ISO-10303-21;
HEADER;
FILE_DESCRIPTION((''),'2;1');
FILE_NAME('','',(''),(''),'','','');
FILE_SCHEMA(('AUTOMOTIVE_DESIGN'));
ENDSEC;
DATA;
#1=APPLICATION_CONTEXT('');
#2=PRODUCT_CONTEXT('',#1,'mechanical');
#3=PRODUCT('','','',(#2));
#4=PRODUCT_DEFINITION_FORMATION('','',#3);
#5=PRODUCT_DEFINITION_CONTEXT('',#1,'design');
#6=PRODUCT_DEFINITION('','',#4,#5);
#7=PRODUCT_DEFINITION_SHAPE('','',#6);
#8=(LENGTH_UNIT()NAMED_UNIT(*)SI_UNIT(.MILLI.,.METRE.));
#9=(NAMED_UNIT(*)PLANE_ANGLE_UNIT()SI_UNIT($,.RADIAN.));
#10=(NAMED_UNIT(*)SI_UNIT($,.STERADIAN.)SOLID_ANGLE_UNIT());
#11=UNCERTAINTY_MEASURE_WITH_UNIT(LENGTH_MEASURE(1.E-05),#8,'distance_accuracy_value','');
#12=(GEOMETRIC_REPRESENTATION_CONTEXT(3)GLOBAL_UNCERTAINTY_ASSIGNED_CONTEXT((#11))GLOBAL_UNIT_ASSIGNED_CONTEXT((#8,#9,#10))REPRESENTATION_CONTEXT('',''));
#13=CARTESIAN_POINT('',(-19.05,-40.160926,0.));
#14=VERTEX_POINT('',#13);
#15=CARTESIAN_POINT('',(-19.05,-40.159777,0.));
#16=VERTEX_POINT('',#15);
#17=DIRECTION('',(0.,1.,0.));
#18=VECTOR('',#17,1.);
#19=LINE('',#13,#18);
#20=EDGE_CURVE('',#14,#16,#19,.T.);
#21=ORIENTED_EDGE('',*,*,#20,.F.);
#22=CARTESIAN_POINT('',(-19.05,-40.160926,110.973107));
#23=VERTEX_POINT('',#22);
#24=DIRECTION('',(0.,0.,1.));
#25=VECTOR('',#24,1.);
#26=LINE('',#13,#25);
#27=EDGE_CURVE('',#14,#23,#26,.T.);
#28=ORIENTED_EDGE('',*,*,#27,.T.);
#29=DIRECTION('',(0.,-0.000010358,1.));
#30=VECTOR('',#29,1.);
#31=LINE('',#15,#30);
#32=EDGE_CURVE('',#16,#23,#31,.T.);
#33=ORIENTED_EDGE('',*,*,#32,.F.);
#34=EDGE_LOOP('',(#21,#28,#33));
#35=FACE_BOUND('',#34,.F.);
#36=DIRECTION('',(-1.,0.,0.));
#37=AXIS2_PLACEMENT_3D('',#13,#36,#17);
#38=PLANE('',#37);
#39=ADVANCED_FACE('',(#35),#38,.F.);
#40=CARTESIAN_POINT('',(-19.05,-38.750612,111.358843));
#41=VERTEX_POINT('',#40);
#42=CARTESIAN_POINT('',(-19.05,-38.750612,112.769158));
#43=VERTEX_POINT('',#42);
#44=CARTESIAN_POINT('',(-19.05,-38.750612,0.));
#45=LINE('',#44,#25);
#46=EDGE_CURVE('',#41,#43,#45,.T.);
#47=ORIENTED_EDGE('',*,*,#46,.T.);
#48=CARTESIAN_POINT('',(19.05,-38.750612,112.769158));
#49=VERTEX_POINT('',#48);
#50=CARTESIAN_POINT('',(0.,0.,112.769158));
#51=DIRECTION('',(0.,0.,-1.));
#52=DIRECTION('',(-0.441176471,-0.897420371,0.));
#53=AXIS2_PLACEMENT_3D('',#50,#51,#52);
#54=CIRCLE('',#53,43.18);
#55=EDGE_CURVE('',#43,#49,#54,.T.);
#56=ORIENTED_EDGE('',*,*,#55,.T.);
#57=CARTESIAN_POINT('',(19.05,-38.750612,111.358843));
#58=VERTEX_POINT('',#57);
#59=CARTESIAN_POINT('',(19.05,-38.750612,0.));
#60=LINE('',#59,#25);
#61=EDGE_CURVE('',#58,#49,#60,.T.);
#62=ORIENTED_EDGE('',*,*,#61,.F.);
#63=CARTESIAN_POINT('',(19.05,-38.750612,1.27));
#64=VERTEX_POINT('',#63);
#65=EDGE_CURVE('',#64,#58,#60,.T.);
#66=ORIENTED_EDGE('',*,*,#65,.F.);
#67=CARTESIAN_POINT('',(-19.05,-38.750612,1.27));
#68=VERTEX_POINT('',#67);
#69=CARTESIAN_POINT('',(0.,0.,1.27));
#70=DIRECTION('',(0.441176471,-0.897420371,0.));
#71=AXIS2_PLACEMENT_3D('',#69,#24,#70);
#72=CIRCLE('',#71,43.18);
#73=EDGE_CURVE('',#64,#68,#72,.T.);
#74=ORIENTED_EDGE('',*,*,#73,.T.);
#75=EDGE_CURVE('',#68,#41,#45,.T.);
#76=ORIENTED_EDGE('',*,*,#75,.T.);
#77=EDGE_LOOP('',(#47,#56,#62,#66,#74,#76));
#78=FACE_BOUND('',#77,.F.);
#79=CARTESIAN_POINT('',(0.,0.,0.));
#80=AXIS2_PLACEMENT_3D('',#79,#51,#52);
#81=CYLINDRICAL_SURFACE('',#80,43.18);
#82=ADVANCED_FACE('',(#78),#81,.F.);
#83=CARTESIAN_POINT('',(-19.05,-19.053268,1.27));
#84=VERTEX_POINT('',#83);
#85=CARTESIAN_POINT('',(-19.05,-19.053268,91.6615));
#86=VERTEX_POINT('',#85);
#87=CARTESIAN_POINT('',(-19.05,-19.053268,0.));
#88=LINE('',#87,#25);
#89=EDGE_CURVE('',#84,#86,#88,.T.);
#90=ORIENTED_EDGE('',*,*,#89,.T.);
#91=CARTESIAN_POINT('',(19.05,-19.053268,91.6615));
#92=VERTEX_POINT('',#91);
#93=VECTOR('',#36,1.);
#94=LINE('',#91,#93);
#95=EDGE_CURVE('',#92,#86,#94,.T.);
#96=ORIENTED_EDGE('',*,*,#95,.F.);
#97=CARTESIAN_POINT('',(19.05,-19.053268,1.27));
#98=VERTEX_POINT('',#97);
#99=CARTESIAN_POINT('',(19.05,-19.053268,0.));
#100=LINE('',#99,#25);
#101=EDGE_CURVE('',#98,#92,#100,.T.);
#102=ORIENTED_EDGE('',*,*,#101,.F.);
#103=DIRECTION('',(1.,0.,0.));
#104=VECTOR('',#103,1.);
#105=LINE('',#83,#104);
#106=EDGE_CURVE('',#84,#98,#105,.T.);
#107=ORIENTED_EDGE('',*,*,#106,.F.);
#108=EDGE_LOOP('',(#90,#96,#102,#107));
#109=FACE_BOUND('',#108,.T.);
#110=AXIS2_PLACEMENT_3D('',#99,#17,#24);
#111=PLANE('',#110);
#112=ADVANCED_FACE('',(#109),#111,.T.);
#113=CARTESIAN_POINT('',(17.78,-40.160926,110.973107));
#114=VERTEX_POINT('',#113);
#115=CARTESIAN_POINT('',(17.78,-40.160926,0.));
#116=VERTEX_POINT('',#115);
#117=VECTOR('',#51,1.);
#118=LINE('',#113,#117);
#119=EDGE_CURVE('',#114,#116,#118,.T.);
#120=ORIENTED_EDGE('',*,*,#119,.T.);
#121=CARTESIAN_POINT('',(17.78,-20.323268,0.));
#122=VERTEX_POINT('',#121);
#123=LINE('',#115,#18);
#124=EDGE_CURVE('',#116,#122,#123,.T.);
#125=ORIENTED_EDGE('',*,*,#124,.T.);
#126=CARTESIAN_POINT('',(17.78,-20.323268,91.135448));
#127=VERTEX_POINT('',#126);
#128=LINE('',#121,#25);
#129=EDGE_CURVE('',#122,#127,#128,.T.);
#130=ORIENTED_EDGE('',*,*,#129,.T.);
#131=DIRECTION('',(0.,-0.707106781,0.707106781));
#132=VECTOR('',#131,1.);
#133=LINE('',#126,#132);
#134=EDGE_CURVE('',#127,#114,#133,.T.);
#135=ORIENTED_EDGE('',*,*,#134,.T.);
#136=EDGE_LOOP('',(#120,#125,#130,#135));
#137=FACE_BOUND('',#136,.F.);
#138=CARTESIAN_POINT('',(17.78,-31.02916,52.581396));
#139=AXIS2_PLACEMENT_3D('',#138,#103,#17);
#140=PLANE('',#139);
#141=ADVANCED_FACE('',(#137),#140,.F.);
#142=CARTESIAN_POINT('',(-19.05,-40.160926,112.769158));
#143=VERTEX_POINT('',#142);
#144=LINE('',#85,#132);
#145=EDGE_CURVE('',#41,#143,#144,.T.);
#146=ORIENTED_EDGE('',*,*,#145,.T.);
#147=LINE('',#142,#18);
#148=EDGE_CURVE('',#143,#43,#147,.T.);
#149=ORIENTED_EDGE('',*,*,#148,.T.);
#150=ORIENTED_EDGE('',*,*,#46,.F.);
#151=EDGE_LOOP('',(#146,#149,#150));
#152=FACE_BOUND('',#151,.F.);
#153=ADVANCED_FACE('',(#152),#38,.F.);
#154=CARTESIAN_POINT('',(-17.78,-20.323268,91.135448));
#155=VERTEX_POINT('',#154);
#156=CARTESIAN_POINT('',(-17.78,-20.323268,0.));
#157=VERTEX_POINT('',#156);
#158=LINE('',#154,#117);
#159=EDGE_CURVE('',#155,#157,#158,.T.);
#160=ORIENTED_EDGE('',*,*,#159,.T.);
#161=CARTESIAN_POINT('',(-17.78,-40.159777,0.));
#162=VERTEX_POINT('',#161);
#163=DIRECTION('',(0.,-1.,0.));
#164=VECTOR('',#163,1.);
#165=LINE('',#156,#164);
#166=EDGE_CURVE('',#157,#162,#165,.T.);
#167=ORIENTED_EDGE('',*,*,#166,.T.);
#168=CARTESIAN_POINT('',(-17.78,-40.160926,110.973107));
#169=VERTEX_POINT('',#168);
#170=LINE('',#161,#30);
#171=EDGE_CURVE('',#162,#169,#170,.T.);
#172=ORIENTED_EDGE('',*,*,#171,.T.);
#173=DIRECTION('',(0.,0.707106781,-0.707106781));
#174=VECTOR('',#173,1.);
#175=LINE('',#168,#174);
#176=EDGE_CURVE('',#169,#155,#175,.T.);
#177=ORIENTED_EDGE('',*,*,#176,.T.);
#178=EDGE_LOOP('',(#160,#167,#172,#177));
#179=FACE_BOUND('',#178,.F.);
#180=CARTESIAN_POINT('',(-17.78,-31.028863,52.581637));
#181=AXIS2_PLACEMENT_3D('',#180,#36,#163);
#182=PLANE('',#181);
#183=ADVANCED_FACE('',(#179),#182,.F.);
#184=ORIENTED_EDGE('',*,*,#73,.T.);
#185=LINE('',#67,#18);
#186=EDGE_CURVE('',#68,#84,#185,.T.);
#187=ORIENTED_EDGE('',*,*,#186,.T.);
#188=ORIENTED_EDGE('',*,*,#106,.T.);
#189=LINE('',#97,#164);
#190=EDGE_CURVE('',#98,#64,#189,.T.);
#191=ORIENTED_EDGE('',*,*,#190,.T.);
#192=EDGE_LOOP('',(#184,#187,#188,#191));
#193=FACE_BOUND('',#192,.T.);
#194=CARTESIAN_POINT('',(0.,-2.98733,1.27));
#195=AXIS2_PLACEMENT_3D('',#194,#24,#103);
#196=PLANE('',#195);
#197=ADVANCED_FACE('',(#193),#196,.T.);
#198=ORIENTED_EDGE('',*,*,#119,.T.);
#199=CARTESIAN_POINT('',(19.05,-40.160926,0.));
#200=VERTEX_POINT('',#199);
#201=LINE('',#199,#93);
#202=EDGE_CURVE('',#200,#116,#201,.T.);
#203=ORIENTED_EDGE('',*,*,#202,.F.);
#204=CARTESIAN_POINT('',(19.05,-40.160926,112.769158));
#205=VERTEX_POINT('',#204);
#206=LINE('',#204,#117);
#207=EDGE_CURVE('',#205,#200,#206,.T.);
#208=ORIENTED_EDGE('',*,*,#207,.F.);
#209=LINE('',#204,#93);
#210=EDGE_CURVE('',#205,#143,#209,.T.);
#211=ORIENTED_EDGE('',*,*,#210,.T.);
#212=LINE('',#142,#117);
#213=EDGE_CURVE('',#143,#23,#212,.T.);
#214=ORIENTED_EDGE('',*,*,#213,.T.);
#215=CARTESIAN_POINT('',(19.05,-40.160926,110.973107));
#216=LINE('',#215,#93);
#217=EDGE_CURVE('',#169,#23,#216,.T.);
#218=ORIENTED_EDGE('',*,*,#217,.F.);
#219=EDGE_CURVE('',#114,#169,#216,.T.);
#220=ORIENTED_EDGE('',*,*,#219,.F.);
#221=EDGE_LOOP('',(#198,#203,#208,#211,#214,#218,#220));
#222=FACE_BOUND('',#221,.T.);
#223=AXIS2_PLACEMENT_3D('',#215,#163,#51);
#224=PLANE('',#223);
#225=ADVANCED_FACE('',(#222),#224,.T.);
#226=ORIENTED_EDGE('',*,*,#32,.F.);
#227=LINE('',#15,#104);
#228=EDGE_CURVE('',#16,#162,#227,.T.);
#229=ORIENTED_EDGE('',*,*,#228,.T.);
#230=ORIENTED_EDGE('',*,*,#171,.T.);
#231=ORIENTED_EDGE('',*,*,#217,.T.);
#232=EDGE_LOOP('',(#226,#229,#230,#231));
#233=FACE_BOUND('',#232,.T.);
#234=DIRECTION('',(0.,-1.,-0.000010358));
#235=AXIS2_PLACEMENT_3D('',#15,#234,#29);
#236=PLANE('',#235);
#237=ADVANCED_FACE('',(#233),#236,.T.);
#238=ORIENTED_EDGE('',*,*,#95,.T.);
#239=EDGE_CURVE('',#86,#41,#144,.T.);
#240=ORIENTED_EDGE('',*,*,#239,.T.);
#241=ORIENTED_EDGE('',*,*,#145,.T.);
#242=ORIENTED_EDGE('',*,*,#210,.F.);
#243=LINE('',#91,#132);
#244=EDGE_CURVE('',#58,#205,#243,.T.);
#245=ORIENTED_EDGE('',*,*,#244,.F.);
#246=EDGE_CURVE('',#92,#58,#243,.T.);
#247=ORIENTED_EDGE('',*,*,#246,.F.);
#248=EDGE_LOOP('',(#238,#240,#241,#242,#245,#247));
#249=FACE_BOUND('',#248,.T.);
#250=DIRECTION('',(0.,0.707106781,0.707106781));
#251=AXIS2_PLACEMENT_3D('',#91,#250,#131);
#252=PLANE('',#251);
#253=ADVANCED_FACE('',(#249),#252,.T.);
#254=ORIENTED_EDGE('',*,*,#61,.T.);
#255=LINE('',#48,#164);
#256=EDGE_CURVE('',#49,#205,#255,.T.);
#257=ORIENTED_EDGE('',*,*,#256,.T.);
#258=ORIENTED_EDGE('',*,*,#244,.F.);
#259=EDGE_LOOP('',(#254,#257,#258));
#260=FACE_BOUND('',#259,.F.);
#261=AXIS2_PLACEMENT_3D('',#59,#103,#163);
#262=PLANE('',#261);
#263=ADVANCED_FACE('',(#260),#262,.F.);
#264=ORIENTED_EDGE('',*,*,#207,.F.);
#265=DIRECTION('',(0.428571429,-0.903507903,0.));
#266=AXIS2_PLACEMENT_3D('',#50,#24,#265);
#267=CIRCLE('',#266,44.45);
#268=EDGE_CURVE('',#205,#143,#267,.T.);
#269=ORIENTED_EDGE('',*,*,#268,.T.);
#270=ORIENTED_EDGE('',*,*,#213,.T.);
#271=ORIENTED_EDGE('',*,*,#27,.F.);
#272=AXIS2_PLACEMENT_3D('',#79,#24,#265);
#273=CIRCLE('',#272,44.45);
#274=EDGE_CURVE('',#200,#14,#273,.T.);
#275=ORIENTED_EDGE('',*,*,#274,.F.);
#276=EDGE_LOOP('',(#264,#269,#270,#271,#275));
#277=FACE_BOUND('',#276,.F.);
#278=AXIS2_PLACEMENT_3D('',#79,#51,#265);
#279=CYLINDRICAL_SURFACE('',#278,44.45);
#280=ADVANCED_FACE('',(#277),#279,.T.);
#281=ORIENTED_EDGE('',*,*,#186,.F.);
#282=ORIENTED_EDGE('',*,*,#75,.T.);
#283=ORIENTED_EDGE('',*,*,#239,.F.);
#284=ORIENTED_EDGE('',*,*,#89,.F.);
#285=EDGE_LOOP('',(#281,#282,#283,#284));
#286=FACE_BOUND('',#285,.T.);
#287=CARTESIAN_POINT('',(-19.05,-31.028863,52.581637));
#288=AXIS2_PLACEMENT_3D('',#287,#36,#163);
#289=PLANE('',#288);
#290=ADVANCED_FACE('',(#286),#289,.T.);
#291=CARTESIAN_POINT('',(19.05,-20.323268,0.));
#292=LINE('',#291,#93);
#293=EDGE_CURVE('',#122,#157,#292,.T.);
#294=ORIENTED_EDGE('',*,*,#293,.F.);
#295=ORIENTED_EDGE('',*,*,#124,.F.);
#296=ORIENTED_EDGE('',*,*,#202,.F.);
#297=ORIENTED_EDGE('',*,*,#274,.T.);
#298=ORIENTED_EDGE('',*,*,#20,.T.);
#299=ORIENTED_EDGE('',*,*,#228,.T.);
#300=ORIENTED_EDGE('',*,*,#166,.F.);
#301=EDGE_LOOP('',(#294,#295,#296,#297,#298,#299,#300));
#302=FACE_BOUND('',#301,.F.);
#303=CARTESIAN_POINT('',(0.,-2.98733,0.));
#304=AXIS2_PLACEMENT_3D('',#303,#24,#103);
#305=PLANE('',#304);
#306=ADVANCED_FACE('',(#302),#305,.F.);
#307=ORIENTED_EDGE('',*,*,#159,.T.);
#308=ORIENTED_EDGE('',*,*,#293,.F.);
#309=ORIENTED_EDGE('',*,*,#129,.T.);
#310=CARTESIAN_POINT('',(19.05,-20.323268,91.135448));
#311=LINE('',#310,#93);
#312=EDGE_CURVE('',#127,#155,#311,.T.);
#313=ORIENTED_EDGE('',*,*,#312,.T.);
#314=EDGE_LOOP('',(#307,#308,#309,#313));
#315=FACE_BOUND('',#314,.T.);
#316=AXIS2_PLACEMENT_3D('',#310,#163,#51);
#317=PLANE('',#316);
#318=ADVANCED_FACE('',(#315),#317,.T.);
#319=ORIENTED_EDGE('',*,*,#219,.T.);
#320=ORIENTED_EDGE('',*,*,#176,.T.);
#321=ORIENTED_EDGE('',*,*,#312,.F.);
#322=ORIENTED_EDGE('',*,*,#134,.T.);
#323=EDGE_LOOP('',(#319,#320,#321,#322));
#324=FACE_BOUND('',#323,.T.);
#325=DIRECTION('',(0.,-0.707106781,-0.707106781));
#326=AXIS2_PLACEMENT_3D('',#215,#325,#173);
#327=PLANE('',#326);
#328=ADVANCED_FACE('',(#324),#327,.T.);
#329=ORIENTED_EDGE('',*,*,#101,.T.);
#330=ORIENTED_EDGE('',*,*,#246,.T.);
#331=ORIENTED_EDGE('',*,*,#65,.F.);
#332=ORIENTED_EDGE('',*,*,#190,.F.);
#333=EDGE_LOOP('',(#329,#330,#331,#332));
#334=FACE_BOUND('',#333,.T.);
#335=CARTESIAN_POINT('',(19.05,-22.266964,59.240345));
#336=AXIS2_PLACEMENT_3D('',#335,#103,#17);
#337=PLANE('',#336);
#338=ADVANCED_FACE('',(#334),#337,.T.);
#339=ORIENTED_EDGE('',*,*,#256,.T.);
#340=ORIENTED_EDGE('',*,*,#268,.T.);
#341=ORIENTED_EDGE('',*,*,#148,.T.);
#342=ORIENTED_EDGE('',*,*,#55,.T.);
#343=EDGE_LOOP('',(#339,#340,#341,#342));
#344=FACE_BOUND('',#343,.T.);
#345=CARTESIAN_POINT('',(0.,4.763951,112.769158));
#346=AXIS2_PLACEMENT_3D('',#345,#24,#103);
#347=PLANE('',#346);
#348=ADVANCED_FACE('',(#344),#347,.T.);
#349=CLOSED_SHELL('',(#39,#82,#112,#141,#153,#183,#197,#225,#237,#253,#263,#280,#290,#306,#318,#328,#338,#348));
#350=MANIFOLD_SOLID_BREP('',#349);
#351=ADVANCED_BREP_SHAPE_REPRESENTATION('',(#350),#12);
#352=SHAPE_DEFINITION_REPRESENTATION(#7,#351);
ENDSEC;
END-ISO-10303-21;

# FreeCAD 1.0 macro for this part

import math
import FreeCAD as App
import Part
import Sketcher

V = App.Vector
Q = App.Units.Quantity

doc = App.newDocument("Part")
params = doc.addObject("Spreadsheet::Sheet", "Params")
for row, (alias, value) in enumerate([
    ("pad1_length", "0.05 in"),
    ("sketch2_width", "0.05 in"),
    ("pad2_length", "1.5 in"),
    ("pad3_length", "0.05 in"),
    ("sketch4_radius", "1.7 in"),
    ("sketch4_radius2", "1.75 in"),
    ("pad4_length", "112.769158 mm"),
    ("sketch5_radius", "1.7 in"),
    ("sketch5_width", "1.5 in"),
    ("pad5_length", "0.05 in"),
], start=1):
    params.set(f"A{row}", alias)
    params.set(f"B{row}", "=" + value)
    params.setAlias(f"B{row}", alias)

body = doc.addObject("PartDesign::Body", "Body")

# Sketch on YZ plane
sketch1 = doc.addObject("Sketcher::SketchObject", "Sketch")
body.addObject(sketch1)
sketch1.AttachmentSupport = (doc.YZ_Plane, [""])
sketch1.MapMode = "FlatFace"
sketch1.AttachmentOffset = App.Placement(V(0, 0, 0.75 * 25.4), App.Rotation())
sketch1.addGeometry(Part.LineSegment(V(-40, 0, 0), V(-20, 0, 0)), False)
sketch1.addGeometry(Part.LineSegment(V(-20, 0, 0), V(-20, 91, 0)), False)
sketch1.addGeometry(Part.LineSegment(V(-20, 91, 0), V(-40, 111, 0)), False)
sketch1.addGeometry(Part.LineSegment(V(-40, 111, 0), V(-40, 0, 0)), False)
sketch1.addConstraint(Sketcher.Constraint("Coincident", 0, 2, 1, 1))
sketch1.addConstraint(Sketcher.Constraint("Coincident", 1, 2, 2, 1))
sketch1.addConstraint(Sketcher.Constraint("Coincident", 2, 2, 3, 1))
sketch1.addConstraint(Sketcher.Constraint("Coincident", 3, 2, 0, 1))
sketch1.addConstraint(Sketcher.Constraint("Horizontal", 0))
sketch1.addConstraint(Sketcher.Constraint("Vertical", 1))
sketch1.addConstraint(Sketcher.Constraint("Vertical", 3))
sketch1.addConstraint(Sketcher.Constraint("PointOnObject", 0, 2, -1))
sketch1.addConstraint(Sketcher.Constraint("Angle", 2, Q("135 deg")))
sketch1.addConstraint(Sketcher.Constraint("DistanceX", 0, 1, 0, 2, Q("19.837658 mm")))
sketch1.addConstraint(Sketcher.Constraint("DistanceY", 1, 1, 1, 2, Q("91.135448 mm")))
sketch1.addConstraint(Sketcher.Constraint("DistanceX", 0, 2, -1, 1, Q("20.323268 mm")))
pad1 = doc.addObject("PartDesign::Pad", "Pad")
body.addObject(pad1)
pad1.Profile = sketch1
pad1.setExpression("Length", "Params.pad1_length")
pad1.Reversed = True

# Sketch on YZ plane
sketch2 = doc.addObject("Sketcher::SketchObject", "Sketch001")
body.addObject(sketch2)
sketch2.AttachmentSupport = (doc.YZ_Plane, [""])
sketch2.MapMode = "FlatFace"
sketch2.AttachmentOffset = App.Placement(V(0, 0, 0.75 * 25.4), App.Rotation())
sketch2.addGeometry(Part.LineSegment(V(-20.3, 0, 0), V(-19.1, 0, 0)), False)
sketch2.addGeometry(Part.LineSegment(V(-19.1, 0, 0), V(-19.1, 91.7, 0)), False)
sketch2.addGeometry(Part.LineSegment(V(-19.1, 91.7, 0), V(-40.2, 112.8, 0)), False)
sketch2.addGeometry(Part.LineSegment(V(-40.2, 112.8, 0), V(-40.2, 111, 0)), False)
sketch2.addGeometry(Part.LineSegment(V(-40.2, 111, 0), V(-20.3, 91.1, 0)), False)
sketch2.addGeometry(Part.LineSegment(V(-20.3, 91.1, 0), V(-20.3, 0, 0)), False)
sketch2.addConstraint(Sketcher.Constraint("Coincident", 0, 2, 1, 1))
sketch2.addConstraint(Sketcher.Constraint("Coincident", 1, 2, 2, 1))
sketch2.addConstraint(Sketcher.Constraint("Coincident", 2, 2, 3, 1))
sketch2.addConstraint(Sketcher.Constraint("Coincident", 3, 2, 4, 1))
sketch2.addConstraint(Sketcher.Constraint("Coincident", 4, 2, 5, 1))
sketch2.addConstraint(Sketcher.Constraint("Coincident", 5, 2, 0, 1))
sketch2.addConstraint(Sketcher.Constraint("Horizontal", 0))
sketch2.addConstraint(Sketcher.Constraint("Vertical", 1))
sketch2.addConstraint(Sketcher.Constraint("Vertical", 3))
sketch2.addConstraint(Sketcher.Constraint("Vertical", 5))
sketch2.addConstraint(Sketcher.Constraint("PointOnObject", 0, 2, -1))
sketch2.addConstraint(Sketcher.Constraint("Parallel", 2, 4))
sketch2.addConstraint(Sketcher.Constraint("Angle", 2, Q("135 deg")))
sketch2.addConstraint(Sketcher.Constraint("DistanceX", 0, 1, 0, 2, Q("0.05 in")))
sketch2.addConstraint(Sketcher.Constraint("DistanceY", 1, 1, 1, 2, Q("91.6615 mm")))
sketch2.addConstraint(Sketcher.Constraint("DistanceY", 3, 2, 3, 1, Q("1.796051 mm")))
sketch2.addConstraint(Sketcher.Constraint("DistanceY", -1, 1, 2, 2, Q("112.769158 mm")))
sketch2.addConstraint(Sketcher.Constraint("DistanceX", 0, 2, -1, 1, Q("19.053268 mm")))
sketch2.setExpression("Constraints[13]", "Params.sketch2_width")
pad2 = doc.addObject("PartDesign::Pad", "Pad001")
body.addObject(pad2)
pad2.Profile = sketch2
pad2.setExpression("Length", "Params.pad2_length")
pad2.Reversed = True

# Sketch on YZ plane
sketch3 = doc.addObject("Sketcher::SketchObject", "Sketch002")
body.addObject(sketch3)
sketch3.AttachmentSupport = (doc.YZ_Plane, [""])
sketch3.MapMode = "FlatFace"
sketch3.AttachmentOffset = App.Placement(V(0, 0, -0.75 * 25.4), App.Rotation())
sketch3.addGeometry(Part.LineSegment(V(-20, 0, 0), V(-40, 0, 0)), False)
sketch3.addGeometry(Part.LineSegment(V(-40, 0, 0), V(-40, 111, 0)), False)
sketch3.addGeometry(Part.LineSegment(V(-40, 111, 0), V(-20, 91, 0)), False)
sketch3.addGeometry(Part.LineSegment(V(-20, 91, 0), V(-20, 0, 0)), False)
sketch3.addConstraint(Sketcher.Constraint("Coincident", 0, 2, 1, 1))
sketch3.addConstraint(Sketcher.Constraint("Coincident", 1, 2, 2, 1))
sketch3.addConstraint(Sketcher.Constraint("Coincident", 2, 2, 3, 1))
sketch3.addConstraint(Sketcher.Constraint("Coincident", 3, 2, 0, 1))
sketch3.addConstraint(Sketcher.Constraint("Horizontal", 0))
sketch3.addConstraint(Sketcher.Constraint("Vertical", 3))
sketch3.addConstraint(Sketcher.Constraint("PointOnObject", 0, 2, -1))
sketch3.addConstraint(Sketcher.Constraint("Angle", 2, Q("-45 deg")))
sketch3.addConstraint(Sketcher.Constraint("DistanceX", 0, 2, 0, 1, Q("19.836509 mm")))
sketch3.addConstraint(Sketcher.Constraint("DistanceY", 3, 2, 3, 1, Q("91.135448 mm")))
sketch3.addConstraint(Sketcher.Constraint("DistanceX", 1, 2, 0, 2, Q("0.001149 mm")))
sketch3.addConstraint(Sketcher.Constraint("DistanceX", 0, 2, -1, 1, Q("40.159777 mm")))
pad3 = doc.addObject("PartDesign::Pad", "Pad002")
body.addObject(pad3)
pad3.Profile = sketch3
pad3.setExpression("Length", "Params.pad3_length")

# Sketch on XY plane
sketch4 = doc.addObject("Sketcher::SketchObject", "Sketch003")
body.addObject(sketch4)
sketch4.AttachmentSupport = (doc.XY_Plane, [""])
sketch4.MapMode = "FlatFace"
sketch4.addGeometry(Part.LineSegment(V(19.1, -38.8, 0), V(19.1, -40.2, 0)), False)
sketch4.addGeometry(Part.ArcOfCircle(Part.Circle(V(0, 0, 0), V(0, 0, 1), 44.5), math.radians(-65), math.radians(245)), False)
sketch4.addGeometry(Part.LineSegment(V(-19.1, -40.2, 0), V(-19.1, -38.8, 0)), False)
sketch4.addGeometry(Part.ArcOfCircle(Part.Circle(V(0, 0, 0), V(0, 0, 1), 43.2), math.radians(-64), math.radians(244)), False)
sketch4.addConstraint(Sketcher.Constraint("Coincident", 0, 2, 1, 1))
sketch4.addConstraint(Sketcher.Constraint("Coincident", 1, 2, 2, 1))
sketch4.addConstraint(Sketcher.Constraint("Coincident", 2, 2, 3, 2))
sketch4.addConstraint(Sketcher.Constraint("Coincident", 3, 1, 0, 1))
sketch4.addConstraint(Sketcher.Constraint("Vertical", 0))
sketch4.addConstraint(Sketcher.Constraint("Vertical", 2))
sketch4.addConstraint(Sketcher.Constraint("Coincident", 1, 3, -1, 1))
sketch4.addConstraint(Sketcher.Constraint("Coincident", 3, 3, -1, 1))
sketch4.addConstraint(Sketcher.Constraint("Horizontal", 0, 2, 1, 2))
sketch4.addConstraint(Sketcher.Constraint("Radius", 3, Q("1.7 in")))
sketch4.addConstraint(Sketcher.Constraint("Radius", 1, Q("1.75 in")))
sketch4.addConstraint(Sketcher.Constraint("DistanceX", 1, 2, 0, 2, Q("1.5 in")))
sketch4.setExpression("Constraints[9]", "Params.sketch4_radius")
sketch4.setExpression("Constraints[10]", "Params.sketch4_radius2")
pad4 = doc.addObject("PartDesign::Pad", "Pad003")
body.addObject(pad4)
pad4.Profile = sketch4
pad4.setExpression("Length", "Params.pad4_length")

# Sketch on XY plane
sketch5 = doc.addObject("Sketcher::SketchObject", "Sketch004")
body.addObject(sketch5)
sketch5.AttachmentSupport = (doc.XY_Plane, [""])
sketch5.MapMode = "FlatFace"
sketch5.addGeometry(Part.LineSegment(V(19, -19, 0), V(19, -39, 0)), False)
sketch5.addGeometry(Part.ArcOfCircle(Part.Circle(V(0, 0, 0), V(0, 0, 1), 43), math.radians(-64), math.radians(244)), False)
sketch5.addGeometry(Part.LineSegment(V(-19, -39, 0), V(-19, -19, 0)), False)
sketch5.addGeometry(Part.LineSegment(V(-19, -19, 0), V(19, -19, 0)), False)
sketch5.addConstraint(Sketcher.Constraint("Coincident", 0, 2, 1, 1))
sketch5.addConstraint(Sketcher.Constraint("Coincident", 1, 2, 2, 1))
sketch5.addConstraint(Sketcher.Constraint("Coincident", 2, 2, 3, 1))
sketch5.addConstraint(Sketcher.Constraint("Coincident", 3, 2, 0, 1))
sketch5.addConstraint(Sketcher.Constraint("Vertical", 0))
sketch5.addConstraint(Sketcher.Constraint("Vertical", 2))
sketch5.addConstraint(Sketcher.Constraint("Horizontal", 3))
sketch5.addConstraint(Sketcher.Constraint("Coincident", 1, 3, -1, 1))
sketch5.addConstraint(Sketcher.Constraint("Horizontal", 0, 2, 1, 2))
sketch5.addConstraint(Sketcher.Constraint("Radius", 1, Q("1.7 in")))
sketch5.addConstraint(Sketcher.Constraint("DistanceX", 3, 1, 3, 2, Q("1.5 in")))
sketch5.addConstraint(Sketcher.Constraint("DistanceY", 0, 2, 0, 1, Q("19.697344 mm")))
sketch5.setExpression("Constraints[9]", "Params.sketch5_radius")
sketch5.setExpression("Constraints[10]", "Params.sketch5_width")
pad5 = doc.addObject("PartDesign::Pad", "Pad004")
body.addObject(pad5)
pad5.Profile = sketch5
pad5.setExpression("Length", "Params.pad5_length")

doc.recompute()
